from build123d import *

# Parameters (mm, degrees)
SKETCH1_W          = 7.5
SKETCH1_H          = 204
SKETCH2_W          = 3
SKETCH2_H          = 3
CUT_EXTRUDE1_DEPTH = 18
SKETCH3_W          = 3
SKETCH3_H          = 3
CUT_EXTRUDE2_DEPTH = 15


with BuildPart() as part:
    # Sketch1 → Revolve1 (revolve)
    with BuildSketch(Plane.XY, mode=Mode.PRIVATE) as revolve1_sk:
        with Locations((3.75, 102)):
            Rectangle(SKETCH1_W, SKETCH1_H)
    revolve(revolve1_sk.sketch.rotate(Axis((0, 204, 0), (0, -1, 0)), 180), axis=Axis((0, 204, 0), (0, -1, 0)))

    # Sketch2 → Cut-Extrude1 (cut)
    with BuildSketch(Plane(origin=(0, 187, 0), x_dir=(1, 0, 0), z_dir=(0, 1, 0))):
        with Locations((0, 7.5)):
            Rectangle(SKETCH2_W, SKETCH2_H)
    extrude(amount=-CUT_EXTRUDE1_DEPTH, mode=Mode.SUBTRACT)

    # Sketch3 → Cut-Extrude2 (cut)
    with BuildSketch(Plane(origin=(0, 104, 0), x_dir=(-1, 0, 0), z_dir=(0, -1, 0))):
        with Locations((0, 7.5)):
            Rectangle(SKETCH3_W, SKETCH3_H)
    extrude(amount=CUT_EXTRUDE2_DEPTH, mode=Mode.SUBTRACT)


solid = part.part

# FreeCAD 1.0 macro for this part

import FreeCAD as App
import Part
import Sketcher
from FreeCAD import Vector

doc = App.newDocument("Part")
params = doc.addObject("Spreadsheet::Sheet", "Params")
for row, (alias, value) in enumerate([
    ("sketch1_height", "204 mm"),
    ("sketch1_width", "7.5 mm"),
    ("revolution_angle", "360 deg"),
    ("sketch2_width", "3 mm"),
    ("pocket1_length", "18 mm"),
    ("sketch3_width", "3 mm"),
    ("pocket2_length", "15 mm"),
], start=1):
    params.set(f"A{row}", alias)
    params.set(f"B{row}", "=" + value)
    params.setAlias(f"B{row}", alias)

body = doc.addObject("PartDesign::Body", "Body")

sketch1 = body.newObject("Sketcher::SketchObject", "Sketch")
sketch1.AttachmentSupport = (doc.getObject("XY_Plane"), [""])
sketch1.MapMode = "FlatFace"
sketch1.addGeometry(Part.LineSegment(Vector(0, 204, 0), Vector(0, 0, 0)), False)
sketch1.addGeometry(Part.LineSegment(Vector(0, 0, 0), Vector(8, 0, 0)), False)
sketch1.addGeometry(Part.LineSegment(Vector(8, 0, 0), Vector(8, 204, 0)), False)
sketch1.addGeometry(Part.LineSegment(Vector(8, 204, 0), Vector(0, 204, 0)), False)
sketch1.addConstraint(Sketcher.Constraint("Coincident", 0, 2, 1, 1))
sketch1.addConstraint(Sketcher.Constraint("Coincident", 1, 2, 2, 1))
sketch1.addConstraint(Sketcher.Constraint("Coincident", 2, 2, 3, 1))
sketch1.addConstraint(Sketcher.Constraint("Coincident", 3, 2, 0, 1))
sketch1.addConstraint(Sketcher.Constraint("Vertical", 0))
sketch1.addConstraint(Sketcher.Constraint("Horizontal", 1))
sketch1.addConstraint(Sketcher.Constraint("Vertical", 2))
sketch1.addConstraint(Sketcher.Constraint("Horizontal", 3))
sketch1.addConstraint(Sketcher.Constraint("Coincident", 0, 2, -1, 1))
sketch1.addConstraint(Sketcher.Constraint("DistanceY", 0, 2, 0, 1, 204.0))
sketch1.addConstraint(Sketcher.Constraint("DistanceX", 1, 1, 1, 2, 7.5))
sketch1.setExpression("Constraints[9]", "Params.sketch1_height")
sketch1.setExpression("Constraints[10]", "Params.sketch1_width")
revolution = body.newObject("PartDesign::Revolution", "Revolution")
revolution.Profile = sketch1
revolution.ReferenceAxis = (sketch1, ["V_Axis"])
revolution.setExpression("Angle", "Params.revolution_angle")

sketch2 = body.newObject("Sketcher::SketchObject", "Sketch001")
sketch2.AttachmentSupport = (doc.getObject("XZ_Plane"), [""])
sketch2.MapMode = "FlatFace"
sketch2.AttachmentOffset = App.Placement(Vector(0, 0, -187), App.Rotation())
sketch2.addGeometry(Part.LineSegment(Vector(-1.5, -9, 0), Vector(-1.5, -6, 0)), False)
sketch2.addGeometry(Part.LineSegment(Vector(-1.5, -6, 0), Vector(1.5, -6, 0)), False)
sketch2.addGeometry(Part.LineSegment(Vector(1.5, -6, 0), Vector(1.5, -9, 0)), False)
sketch2.addGeometry(Part.LineSegment(Vector(1.5, -9, 0), Vector(-1.5, -9, 0)), False)
sketch2.addConstraint(Sketcher.Constraint("Coincident", 0, 2, 1, 1))
sketch2.addConstraint(Sketcher.Constraint("Coincident", 1, 2, 2, 1))
sketch2.addConstraint(Sketcher.Constraint("Coincident", 2, 2, 3, 1))
sketch2.addConstraint(Sketcher.Constraint("Coincident", 3, 2, 0, 1))
sketch2.addConstraint(Sketcher.Constraint("Vertical", 0))
sketch2.addConstraint(Sketcher.Constraint("Horizontal", 1))
sketch2.addConstraint(Sketcher.Constraint("Vertical", 2))
sketch2.addConstraint(Sketcher.Constraint("Horizontal", 3))
sketch2.addConstraint(Sketcher.Constraint("Equal", 3, 0))
sketch2.addConstraint(Sketcher.Constraint("DistanceX", 1, 1, 1, 2, 3.0))
sketch2.addConstraint(Sketcher.Constraint("DistanceY", 0, 2, -1, 1, 6.0))
sketch2.addConstraint(Sketcher.Constraint("DistanceX", 0, 2, -1, 1, 1.5))
sketch2.setExpression("Constraints[9]", "Params.sketch2_width")
pocket1 = body.newObject("PartDesign::Pocket", "Pocket")
pocket1.Profile = sketch2
pocket1.setExpression("Length", "Params.pocket1_length")
pocket1.Reversed = True

sketch3 = body.newObject("Sketcher::SketchObject", "Sketch002")
sketch3.AttachmentSupport = (doc.getObject("XZ_Plane"), [""])
sketch3.MapMode = "FlatFace"
sketch3.AttachmentOffset = App.Placement(Vector(0, 0, -104), App.Rotation())
sketch3.addGeometry(Part.LineSegment(Vector(1.5, -9, 0), Vector(1.5, -6, 0)), False)
sketch3.addGeometry(Part.LineSegment(Vector(1.5, -6, 0), Vector(-1.5, -6, 0)), False)
sketch3.addGeometry(Part.LineSegment(Vector(-1.5, -6, 0), Vector(-1.5, -9, 0)), False)
sketch3.addGeometry(Part.LineSegment(Vector(-1.5, -9, 0), Vector(1.5, -9, 0)), False)
sketch3.addConstraint(Sketcher.Constraint("Coincident", 0, 2, 1, 1))
sketch3.addConstraint(Sketcher.Constraint("Coincident", 1, 2, 2, 1))
sketch3.addConstraint(Sketcher.Constraint("Coincident", 2, 2, 3, 1))
sketch3.addConstraint(Sketcher.Constraint("Coincident", 3, 2, 0, 1))
sketch3.addConstraint(Sketcher.Constraint("Vertical", 0))
sketch3.addConstraint(Sketcher.Constraint("Horizontal", 1))
sketch3.addConstraint(Sketcher.Constraint("Vertical", 2))
sketch3.addConstraint(Sketcher.Constraint("Horizontal", 3))
sketch3.addConstraint(Sketcher.Constraint("Equal", 3, 0))
sketch3.addConstraint(Sketcher.Constraint("DistanceX", 1, 2, 1, 1, 3.0))
sketch3.addConstraint(Sketcher.Constraint("DistanceY", 0, 2, -1, 1, 6.0))
sketch3.addConstraint(Sketcher.Constraint("DistanceX", -1, 1, 0, 2, 1.5))
sketch3.setExpression("Constraints[9]", "Params.sketch3_width")
pocket2 = body.newObject("PartDesign::Pocket", "Pocket001")
pocket2.Profile = sketch3
pocket2.setExpression("Length", "Params.pocket2_length")
pocket2.Reversed = True

doc.recompute()
